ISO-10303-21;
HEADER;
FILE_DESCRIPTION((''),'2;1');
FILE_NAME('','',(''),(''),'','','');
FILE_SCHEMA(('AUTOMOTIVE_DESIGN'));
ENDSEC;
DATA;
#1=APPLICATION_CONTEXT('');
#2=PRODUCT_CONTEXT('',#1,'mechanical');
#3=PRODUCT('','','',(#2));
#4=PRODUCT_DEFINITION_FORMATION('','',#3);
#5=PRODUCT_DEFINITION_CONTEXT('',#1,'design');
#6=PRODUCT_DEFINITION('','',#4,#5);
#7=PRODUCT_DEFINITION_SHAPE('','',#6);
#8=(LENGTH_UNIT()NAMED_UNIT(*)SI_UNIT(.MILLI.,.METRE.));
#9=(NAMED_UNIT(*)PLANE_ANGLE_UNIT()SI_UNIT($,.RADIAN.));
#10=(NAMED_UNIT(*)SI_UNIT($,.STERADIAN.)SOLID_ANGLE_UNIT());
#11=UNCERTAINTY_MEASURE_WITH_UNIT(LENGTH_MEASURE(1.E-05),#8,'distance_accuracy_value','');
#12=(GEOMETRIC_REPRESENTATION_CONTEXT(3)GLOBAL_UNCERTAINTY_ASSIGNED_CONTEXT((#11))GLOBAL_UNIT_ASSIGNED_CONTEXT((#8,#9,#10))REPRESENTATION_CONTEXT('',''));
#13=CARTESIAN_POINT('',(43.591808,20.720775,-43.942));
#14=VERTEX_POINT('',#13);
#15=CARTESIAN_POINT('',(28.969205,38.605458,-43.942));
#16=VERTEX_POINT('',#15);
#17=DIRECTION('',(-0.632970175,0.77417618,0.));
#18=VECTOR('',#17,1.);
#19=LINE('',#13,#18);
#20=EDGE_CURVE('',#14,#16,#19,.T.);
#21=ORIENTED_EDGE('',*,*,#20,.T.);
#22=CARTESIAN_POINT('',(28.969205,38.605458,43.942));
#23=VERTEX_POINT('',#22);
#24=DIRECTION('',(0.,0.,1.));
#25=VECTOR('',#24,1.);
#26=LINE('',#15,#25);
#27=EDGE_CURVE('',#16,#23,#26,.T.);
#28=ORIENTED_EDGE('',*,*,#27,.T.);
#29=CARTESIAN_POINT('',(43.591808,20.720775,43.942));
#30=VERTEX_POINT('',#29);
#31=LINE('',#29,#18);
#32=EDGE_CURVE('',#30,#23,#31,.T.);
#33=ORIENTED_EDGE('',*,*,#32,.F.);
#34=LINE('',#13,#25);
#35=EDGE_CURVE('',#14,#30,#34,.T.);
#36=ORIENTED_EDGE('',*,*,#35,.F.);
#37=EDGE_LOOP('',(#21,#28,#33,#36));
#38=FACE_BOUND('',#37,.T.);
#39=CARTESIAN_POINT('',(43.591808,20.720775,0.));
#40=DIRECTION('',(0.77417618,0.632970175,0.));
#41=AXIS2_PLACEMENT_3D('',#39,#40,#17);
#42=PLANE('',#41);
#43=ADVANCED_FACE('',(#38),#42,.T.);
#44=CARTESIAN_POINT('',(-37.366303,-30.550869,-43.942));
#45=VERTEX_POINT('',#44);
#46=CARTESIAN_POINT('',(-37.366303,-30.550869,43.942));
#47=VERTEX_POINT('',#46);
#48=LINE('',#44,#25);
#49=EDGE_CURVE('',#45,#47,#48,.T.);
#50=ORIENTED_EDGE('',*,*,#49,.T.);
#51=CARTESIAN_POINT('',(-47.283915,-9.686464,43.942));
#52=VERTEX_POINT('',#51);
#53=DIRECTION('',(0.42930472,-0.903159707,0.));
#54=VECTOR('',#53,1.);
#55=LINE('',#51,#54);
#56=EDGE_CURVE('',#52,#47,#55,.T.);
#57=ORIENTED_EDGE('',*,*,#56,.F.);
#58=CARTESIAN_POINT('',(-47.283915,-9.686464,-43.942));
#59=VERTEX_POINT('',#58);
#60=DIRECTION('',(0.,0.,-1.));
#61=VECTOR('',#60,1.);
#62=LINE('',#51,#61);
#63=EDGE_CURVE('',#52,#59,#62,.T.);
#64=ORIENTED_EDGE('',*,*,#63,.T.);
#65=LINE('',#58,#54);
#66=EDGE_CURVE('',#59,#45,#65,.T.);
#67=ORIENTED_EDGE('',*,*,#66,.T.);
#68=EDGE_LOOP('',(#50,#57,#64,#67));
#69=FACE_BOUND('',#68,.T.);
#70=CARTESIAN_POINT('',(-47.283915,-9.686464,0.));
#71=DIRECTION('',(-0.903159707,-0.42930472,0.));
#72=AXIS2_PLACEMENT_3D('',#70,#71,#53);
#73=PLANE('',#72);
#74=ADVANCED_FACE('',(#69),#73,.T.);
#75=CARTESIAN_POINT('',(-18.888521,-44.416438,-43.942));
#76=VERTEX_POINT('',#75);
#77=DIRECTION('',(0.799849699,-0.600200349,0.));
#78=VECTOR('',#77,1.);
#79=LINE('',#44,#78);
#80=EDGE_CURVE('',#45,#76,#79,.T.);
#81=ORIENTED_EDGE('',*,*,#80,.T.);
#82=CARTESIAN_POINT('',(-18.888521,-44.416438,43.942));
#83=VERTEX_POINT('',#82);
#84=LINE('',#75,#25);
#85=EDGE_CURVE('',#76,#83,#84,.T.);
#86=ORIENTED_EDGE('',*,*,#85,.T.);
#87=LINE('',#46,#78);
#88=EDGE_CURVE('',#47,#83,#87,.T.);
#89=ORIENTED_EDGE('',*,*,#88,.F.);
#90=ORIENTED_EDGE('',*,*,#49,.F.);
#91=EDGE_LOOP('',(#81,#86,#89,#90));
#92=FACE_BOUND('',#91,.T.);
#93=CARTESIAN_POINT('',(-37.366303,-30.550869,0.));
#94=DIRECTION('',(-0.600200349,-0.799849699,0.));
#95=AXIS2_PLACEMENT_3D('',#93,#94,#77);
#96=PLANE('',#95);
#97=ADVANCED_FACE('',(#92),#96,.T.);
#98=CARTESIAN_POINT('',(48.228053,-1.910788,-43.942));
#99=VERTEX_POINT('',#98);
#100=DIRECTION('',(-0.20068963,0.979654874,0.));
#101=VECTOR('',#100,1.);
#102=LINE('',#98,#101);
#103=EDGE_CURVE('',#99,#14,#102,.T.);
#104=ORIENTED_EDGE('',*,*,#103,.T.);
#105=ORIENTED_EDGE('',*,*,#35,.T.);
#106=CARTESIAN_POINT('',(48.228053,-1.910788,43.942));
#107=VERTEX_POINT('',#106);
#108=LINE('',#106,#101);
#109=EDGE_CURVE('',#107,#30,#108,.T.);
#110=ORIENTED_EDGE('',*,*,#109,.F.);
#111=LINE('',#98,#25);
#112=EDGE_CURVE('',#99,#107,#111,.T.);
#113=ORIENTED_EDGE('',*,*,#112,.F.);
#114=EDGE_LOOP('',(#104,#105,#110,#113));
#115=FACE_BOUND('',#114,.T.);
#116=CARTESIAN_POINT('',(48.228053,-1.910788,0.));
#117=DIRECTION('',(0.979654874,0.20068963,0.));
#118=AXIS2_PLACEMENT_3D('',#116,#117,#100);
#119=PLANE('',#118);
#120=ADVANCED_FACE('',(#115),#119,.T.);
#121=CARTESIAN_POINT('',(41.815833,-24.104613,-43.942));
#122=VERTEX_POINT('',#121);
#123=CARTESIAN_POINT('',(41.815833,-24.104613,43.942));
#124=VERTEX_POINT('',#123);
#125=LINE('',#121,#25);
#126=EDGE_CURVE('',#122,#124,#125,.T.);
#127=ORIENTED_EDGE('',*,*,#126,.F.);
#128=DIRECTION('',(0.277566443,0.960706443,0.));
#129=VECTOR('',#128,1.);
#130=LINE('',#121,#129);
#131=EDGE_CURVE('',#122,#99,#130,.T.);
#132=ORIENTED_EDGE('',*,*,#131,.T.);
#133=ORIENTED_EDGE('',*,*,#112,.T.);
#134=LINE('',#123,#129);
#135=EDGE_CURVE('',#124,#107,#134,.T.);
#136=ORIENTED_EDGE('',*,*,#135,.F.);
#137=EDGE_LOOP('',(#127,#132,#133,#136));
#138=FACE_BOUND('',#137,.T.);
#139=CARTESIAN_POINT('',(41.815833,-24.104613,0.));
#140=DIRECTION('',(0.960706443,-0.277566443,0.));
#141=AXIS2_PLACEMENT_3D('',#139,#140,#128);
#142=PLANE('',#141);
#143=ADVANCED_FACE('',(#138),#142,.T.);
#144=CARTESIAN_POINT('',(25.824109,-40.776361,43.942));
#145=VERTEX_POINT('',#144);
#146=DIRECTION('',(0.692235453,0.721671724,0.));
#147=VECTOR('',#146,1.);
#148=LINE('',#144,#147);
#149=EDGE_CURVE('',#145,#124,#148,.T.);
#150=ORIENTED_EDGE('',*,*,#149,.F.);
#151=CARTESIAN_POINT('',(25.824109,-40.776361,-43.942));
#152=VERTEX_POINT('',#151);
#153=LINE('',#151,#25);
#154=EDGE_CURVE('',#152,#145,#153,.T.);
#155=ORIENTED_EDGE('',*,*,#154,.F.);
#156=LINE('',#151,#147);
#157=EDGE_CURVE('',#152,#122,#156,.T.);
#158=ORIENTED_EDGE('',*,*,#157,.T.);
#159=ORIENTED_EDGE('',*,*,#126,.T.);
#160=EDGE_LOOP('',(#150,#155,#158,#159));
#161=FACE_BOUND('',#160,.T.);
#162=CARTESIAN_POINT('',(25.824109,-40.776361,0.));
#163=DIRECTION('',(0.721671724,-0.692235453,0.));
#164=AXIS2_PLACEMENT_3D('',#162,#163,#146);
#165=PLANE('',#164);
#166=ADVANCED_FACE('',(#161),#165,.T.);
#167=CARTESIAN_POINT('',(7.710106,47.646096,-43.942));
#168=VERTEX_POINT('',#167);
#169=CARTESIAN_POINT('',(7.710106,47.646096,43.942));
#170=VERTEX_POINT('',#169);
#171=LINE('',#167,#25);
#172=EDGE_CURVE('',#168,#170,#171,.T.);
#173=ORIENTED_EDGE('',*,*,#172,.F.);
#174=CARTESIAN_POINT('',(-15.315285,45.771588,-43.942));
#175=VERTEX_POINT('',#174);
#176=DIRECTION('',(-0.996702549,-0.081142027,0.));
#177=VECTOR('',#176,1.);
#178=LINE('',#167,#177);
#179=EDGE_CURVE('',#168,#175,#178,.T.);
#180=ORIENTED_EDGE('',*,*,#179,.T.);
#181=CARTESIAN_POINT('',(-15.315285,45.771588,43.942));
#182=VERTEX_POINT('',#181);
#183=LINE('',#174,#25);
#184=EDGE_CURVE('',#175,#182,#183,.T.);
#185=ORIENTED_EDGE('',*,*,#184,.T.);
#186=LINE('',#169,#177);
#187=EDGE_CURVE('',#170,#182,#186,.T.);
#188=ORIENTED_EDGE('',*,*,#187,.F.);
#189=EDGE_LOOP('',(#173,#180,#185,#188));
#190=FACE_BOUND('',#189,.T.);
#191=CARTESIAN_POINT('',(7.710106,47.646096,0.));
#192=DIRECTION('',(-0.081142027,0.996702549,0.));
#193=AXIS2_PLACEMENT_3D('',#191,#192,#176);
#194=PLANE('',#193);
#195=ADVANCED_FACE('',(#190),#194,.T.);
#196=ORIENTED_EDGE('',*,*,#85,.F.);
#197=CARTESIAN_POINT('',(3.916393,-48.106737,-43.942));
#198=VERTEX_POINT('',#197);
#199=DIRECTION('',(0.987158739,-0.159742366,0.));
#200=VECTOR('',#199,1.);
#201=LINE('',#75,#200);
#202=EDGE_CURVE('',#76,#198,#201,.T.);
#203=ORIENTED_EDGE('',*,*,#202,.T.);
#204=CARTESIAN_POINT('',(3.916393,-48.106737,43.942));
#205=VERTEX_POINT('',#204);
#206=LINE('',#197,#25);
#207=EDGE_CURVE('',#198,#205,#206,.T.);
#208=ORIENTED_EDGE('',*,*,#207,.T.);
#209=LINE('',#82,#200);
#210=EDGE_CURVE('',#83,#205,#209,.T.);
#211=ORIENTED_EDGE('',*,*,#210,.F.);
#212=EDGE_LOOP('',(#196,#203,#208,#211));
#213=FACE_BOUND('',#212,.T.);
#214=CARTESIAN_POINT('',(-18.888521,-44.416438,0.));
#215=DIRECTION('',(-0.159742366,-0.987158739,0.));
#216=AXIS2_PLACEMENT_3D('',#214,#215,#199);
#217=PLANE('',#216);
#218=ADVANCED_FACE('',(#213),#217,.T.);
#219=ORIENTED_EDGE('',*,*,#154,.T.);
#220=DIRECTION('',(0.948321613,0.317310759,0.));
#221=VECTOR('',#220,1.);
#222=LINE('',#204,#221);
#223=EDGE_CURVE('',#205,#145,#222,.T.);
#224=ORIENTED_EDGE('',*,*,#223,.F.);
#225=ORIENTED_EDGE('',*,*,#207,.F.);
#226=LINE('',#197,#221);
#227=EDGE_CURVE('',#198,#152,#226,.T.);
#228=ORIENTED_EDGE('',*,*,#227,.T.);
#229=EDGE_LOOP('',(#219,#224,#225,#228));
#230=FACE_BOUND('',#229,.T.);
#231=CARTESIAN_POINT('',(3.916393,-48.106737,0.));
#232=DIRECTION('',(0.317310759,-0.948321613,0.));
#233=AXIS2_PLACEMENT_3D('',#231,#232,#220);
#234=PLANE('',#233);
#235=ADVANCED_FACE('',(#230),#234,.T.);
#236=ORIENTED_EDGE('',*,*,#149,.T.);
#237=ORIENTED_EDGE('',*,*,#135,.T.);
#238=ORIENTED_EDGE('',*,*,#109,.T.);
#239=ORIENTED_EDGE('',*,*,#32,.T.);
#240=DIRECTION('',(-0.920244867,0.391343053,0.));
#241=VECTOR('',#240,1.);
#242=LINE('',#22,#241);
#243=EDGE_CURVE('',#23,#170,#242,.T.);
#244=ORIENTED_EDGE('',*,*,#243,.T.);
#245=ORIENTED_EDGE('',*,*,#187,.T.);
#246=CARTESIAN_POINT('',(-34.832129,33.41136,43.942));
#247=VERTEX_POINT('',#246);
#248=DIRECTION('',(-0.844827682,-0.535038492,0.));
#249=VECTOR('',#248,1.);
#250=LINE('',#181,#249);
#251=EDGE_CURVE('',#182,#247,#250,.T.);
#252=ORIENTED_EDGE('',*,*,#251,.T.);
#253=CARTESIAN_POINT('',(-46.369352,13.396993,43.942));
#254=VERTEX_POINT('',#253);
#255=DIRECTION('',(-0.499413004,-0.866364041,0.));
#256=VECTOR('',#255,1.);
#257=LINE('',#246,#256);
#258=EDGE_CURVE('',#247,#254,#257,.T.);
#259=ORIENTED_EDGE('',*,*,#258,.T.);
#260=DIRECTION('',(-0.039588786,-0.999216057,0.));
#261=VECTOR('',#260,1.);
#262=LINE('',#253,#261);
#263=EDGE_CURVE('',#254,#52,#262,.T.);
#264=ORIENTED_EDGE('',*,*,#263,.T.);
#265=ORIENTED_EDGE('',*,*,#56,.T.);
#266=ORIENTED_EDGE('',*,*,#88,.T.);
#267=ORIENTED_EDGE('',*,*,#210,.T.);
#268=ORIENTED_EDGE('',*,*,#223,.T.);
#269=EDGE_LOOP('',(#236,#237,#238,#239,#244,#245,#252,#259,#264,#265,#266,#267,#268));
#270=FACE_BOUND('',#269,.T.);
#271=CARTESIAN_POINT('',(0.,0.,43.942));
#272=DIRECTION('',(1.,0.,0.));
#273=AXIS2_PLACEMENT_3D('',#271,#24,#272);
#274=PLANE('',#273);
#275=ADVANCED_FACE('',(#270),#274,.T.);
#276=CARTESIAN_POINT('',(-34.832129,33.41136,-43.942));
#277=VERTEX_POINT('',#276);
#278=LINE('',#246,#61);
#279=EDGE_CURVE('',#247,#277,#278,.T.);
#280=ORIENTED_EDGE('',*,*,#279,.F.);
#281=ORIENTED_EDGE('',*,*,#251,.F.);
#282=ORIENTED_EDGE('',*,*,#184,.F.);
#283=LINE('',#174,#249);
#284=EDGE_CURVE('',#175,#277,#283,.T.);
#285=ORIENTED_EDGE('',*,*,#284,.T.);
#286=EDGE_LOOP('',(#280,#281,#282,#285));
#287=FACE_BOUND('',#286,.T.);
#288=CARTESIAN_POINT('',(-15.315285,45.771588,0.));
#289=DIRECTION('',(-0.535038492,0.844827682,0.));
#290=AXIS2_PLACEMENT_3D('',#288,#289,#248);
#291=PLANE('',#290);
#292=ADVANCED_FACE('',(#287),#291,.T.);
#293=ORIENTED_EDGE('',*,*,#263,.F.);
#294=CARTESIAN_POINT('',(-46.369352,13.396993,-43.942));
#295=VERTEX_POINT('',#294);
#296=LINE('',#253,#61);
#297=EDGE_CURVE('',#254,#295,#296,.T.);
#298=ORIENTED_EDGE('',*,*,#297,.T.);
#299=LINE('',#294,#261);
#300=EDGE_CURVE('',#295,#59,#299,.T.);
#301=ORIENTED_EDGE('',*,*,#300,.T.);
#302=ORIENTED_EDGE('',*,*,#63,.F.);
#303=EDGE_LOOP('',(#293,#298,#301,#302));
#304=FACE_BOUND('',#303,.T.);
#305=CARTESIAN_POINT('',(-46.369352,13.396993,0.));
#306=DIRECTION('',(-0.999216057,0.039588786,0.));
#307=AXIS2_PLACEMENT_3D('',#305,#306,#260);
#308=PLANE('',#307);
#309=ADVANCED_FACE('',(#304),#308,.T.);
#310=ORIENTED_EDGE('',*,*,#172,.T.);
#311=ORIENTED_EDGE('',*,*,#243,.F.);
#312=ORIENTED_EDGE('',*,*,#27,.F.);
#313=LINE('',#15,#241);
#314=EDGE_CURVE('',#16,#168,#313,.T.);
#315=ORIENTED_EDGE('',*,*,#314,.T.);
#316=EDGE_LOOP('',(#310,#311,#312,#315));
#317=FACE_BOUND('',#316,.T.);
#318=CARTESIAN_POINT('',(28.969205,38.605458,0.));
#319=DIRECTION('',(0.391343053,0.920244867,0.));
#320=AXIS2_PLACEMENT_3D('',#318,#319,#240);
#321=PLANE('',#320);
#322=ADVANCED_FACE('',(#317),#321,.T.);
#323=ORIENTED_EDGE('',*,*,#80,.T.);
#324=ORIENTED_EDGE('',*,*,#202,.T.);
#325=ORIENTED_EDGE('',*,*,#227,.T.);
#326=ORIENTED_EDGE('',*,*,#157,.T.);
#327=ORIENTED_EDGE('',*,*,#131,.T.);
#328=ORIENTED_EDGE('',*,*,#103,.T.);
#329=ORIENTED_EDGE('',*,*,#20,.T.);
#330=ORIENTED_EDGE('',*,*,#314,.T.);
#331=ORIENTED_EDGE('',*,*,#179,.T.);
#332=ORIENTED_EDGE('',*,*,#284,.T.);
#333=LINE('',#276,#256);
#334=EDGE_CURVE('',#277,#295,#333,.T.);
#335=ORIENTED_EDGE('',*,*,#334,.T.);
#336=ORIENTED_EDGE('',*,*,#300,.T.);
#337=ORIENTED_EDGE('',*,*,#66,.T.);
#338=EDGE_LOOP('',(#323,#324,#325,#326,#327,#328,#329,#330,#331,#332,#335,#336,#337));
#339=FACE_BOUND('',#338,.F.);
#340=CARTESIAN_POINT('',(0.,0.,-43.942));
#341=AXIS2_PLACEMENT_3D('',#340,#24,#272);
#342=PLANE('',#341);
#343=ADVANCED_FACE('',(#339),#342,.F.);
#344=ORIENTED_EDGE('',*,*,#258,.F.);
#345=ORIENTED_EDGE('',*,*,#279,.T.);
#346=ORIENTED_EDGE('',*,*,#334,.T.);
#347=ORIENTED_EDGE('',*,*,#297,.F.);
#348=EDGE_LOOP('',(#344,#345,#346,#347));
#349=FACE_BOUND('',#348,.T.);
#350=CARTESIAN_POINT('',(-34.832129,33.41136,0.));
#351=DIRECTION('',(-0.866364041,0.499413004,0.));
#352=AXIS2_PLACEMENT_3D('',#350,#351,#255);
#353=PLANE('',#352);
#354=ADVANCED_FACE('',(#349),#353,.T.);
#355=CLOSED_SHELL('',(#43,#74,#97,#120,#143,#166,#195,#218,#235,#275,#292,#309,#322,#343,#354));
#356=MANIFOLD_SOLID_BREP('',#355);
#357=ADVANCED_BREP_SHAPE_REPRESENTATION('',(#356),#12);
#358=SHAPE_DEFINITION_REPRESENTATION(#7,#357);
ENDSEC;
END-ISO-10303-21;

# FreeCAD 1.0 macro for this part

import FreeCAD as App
import Part
import Sketcher
from FreeCAD import Vector
Q = App.Units.Quantity

doc = App.newDocument("Part")
body = doc.addObject("PartDesign::Body", "Body")

# Sketch on XY plane
sketch1 = doc.addObject("Sketcher::SketchObject", "Sketch")
body.addObject(sketch1)
sketch1.AttachmentSupport = (doc.XY_Plane, [""])
sketch1.MapMode = "FlatFace"
sketch1.addGeometry(Part.LineSegment(Vector(-47, -10, 0), Vector(-37, -31, 0)), False)
sketch1.addGeometry(Part.LineSegment(Vector(-37, -31, 0), Vector(-19, -44, 0)), False)
sketch1.addGeometry(Part.LineSegment(Vector(-19, -44, 0), Vector(4, -48, 0)), False)
sketch1.addGeometry(Part.LineSegment(Vector(4, -48, 0), Vector(26, -41, 0)), False)
sketch1.addGeometry(Part.LineSegment(Vector(26, -41, 0), Vector(42, -24, 0)), False)
sketch1.addGeometry(Part.LineSegment(Vector(42, -24, 0), Vector(48, -2, 0)), False)
sketch1.addGeometry(Part.LineSegment(Vector(48, -2, 0), Vector(44, 21, 0)), False)
sketch1.addGeometry(Part.LineSegment(Vector(44, 21, 0), Vector(29, 39, 0)), False)
sketch1.addGeometry(Part.LineSegment(Vector(29, 39, 0), Vector(8, 48, 0)), False)
sketch1.addGeometry(Part.LineSegment(Vector(8, 48, 0), Vector(-15, 46, 0)), False)
sketch1.addGeometry(Part.LineSegment(Vector(-15, 46, 0), Vector(-35, 33, 0)), False)
sketch1.addGeometry(Part.LineSegment(Vector(-35, 33, 0), Vector(-46, 13, 0)), False)
sketch1.addGeometry(Part.LineSegment(Vector(-46, 13, 0), Vector(-47, -10, 0)), False)
sketch1.addConstraint(Sketcher.Constraint("Coincident", 0, 2, 1, 1))
sketch1.addConstraint(Sketcher.Constraint("Coincident", 1, 2, 2, 1))
sketch1.addConstraint(Sketcher.Constraint("Coincident", 2, 2, 3, 1))
sketch1.addConstraint(Sketcher.Constraint("Coincident", 3, 2, 4, 1))
sketch1.addConstraint(Sketcher.Constraint("Coincident", 4, 2, 5, 1))
sketch1.addConstraint(Sketcher.Constraint("Coincident", 5, 2, 6, 1))
sketch1.addConstraint(Sketcher.Constraint("Coincident", 6, 2, 7, 1))
sketch1.addConstraint(Sketcher.Constraint("Coincident", 7, 2, 8, 1))
sketch1.addConstraint(Sketcher.Constraint("Coincident", 8, 2, 9, 1))
sketch1.addConstraint(Sketcher.Constraint("Coincident", 9, 2, 10, 1))
sketch1.addConstraint(Sketcher.Constraint("Coincident", 10, 2, 11, 1))
sketch1.addConstraint(Sketcher.Constraint("Coincident", 11, 2, 12, 1))
sketch1.addConstraint(Sketcher.Constraint("Coincident", 12, 2, 0, 1))
sketch1.addConstraint(Sketcher.Constraint("Equal", 0, 1))
sketch1.addConstraint(Sketcher.Constraint("Equal", 1, 2))
sketch1.addConstraint(Sketcher.Constraint("Equal", 2, 3))
sketch1.addConstraint(Sketcher.Constraint("Equal", 3, 4))
sketch1.addConstraint(Sketcher.Constraint("Equal", 4, 5))
sketch1.addConstraint(Sketcher.Constraint("Equal", 5, 6))
sketch1.addConstraint(Sketcher.Constraint("Equal", 6, 7))
sketch1.addConstraint(Sketcher.Constraint("Equal", 7, 8))
sketch1.addConstraint(Sketcher.Constraint("Equal", 8, 9))
sketch1.addConstraint(Sketcher.Constraint("Equal", 9, 10))
sketch1.addConstraint(Sketcher.Constraint("Equal", 10, 11))
sketch1.addConstraint(Sketcher.Constraint("Equal", 11, 12))
sketch1.addConstraint(Sketcher.Constraint("DistanceY", -1, 1, 7, 2, Q("1.5198999 in")))
sketch1.addConstraint(Sketcher.Constraint("DistanceY", 2, 2, 1, 2, 3.690299))
sketch1.addConstraint(Sketcher.Constraint("DistanceX", 3, 2, 6, 2, 17.767699))
sketch1.addConstraint(Sketcher.Constraint("DistanceX", 8, 2, 7, 2, 21.259099))
sketch1.addConstraint(Sketcher.Constraint("DistanceY", 1, 2, 10, 2, 77.827798))
sketch1.addConstraint(Sketcher.Constraint("DistanceY", 0, 2, -1, 1, 30.550869))
sketch1.addConstraint(Sketcher.Constraint("DistanceX", 1, 2, -1, 1, 18.888521))
sketch1.addConstraint(Sketcher.Constraint("DistanceX", -1, 1, 3, 2, 25.824109))
sketch1.addConstraint(Sketcher.Constraint("DistanceY", 3, 2, -1, 1, 40.776361))
sketch1.addConstraint(Sketcher.Constraint("DistanceX", 10, 2, -1, 1, 34.832129))
sketch1.addConstraint(Sketcher.Constraint("DistanceY", -1, 1, 10, 2, 33.41136))
sketch1.addConstraint(Sketcher.Constraint("DistanceY", 3, 2, 4, 2, 16.671748))
sketch1.addConstraint(Sketcher.Constraint("DistanceX", 4, 2, 5, 2, 6.41222))
sketch1.addConstraint(Sketcher.Constraint("DistanceX", 11, 2, 0, 2, 9.003049))
pad1 = doc.addObject("PartDesign::Pad", "Pad")
body.addObject(pad1)
pad1.Profile = sketch1
pad1.Length = Q("3.46 in")
pad1.Midplane = True

doc.recompute()
